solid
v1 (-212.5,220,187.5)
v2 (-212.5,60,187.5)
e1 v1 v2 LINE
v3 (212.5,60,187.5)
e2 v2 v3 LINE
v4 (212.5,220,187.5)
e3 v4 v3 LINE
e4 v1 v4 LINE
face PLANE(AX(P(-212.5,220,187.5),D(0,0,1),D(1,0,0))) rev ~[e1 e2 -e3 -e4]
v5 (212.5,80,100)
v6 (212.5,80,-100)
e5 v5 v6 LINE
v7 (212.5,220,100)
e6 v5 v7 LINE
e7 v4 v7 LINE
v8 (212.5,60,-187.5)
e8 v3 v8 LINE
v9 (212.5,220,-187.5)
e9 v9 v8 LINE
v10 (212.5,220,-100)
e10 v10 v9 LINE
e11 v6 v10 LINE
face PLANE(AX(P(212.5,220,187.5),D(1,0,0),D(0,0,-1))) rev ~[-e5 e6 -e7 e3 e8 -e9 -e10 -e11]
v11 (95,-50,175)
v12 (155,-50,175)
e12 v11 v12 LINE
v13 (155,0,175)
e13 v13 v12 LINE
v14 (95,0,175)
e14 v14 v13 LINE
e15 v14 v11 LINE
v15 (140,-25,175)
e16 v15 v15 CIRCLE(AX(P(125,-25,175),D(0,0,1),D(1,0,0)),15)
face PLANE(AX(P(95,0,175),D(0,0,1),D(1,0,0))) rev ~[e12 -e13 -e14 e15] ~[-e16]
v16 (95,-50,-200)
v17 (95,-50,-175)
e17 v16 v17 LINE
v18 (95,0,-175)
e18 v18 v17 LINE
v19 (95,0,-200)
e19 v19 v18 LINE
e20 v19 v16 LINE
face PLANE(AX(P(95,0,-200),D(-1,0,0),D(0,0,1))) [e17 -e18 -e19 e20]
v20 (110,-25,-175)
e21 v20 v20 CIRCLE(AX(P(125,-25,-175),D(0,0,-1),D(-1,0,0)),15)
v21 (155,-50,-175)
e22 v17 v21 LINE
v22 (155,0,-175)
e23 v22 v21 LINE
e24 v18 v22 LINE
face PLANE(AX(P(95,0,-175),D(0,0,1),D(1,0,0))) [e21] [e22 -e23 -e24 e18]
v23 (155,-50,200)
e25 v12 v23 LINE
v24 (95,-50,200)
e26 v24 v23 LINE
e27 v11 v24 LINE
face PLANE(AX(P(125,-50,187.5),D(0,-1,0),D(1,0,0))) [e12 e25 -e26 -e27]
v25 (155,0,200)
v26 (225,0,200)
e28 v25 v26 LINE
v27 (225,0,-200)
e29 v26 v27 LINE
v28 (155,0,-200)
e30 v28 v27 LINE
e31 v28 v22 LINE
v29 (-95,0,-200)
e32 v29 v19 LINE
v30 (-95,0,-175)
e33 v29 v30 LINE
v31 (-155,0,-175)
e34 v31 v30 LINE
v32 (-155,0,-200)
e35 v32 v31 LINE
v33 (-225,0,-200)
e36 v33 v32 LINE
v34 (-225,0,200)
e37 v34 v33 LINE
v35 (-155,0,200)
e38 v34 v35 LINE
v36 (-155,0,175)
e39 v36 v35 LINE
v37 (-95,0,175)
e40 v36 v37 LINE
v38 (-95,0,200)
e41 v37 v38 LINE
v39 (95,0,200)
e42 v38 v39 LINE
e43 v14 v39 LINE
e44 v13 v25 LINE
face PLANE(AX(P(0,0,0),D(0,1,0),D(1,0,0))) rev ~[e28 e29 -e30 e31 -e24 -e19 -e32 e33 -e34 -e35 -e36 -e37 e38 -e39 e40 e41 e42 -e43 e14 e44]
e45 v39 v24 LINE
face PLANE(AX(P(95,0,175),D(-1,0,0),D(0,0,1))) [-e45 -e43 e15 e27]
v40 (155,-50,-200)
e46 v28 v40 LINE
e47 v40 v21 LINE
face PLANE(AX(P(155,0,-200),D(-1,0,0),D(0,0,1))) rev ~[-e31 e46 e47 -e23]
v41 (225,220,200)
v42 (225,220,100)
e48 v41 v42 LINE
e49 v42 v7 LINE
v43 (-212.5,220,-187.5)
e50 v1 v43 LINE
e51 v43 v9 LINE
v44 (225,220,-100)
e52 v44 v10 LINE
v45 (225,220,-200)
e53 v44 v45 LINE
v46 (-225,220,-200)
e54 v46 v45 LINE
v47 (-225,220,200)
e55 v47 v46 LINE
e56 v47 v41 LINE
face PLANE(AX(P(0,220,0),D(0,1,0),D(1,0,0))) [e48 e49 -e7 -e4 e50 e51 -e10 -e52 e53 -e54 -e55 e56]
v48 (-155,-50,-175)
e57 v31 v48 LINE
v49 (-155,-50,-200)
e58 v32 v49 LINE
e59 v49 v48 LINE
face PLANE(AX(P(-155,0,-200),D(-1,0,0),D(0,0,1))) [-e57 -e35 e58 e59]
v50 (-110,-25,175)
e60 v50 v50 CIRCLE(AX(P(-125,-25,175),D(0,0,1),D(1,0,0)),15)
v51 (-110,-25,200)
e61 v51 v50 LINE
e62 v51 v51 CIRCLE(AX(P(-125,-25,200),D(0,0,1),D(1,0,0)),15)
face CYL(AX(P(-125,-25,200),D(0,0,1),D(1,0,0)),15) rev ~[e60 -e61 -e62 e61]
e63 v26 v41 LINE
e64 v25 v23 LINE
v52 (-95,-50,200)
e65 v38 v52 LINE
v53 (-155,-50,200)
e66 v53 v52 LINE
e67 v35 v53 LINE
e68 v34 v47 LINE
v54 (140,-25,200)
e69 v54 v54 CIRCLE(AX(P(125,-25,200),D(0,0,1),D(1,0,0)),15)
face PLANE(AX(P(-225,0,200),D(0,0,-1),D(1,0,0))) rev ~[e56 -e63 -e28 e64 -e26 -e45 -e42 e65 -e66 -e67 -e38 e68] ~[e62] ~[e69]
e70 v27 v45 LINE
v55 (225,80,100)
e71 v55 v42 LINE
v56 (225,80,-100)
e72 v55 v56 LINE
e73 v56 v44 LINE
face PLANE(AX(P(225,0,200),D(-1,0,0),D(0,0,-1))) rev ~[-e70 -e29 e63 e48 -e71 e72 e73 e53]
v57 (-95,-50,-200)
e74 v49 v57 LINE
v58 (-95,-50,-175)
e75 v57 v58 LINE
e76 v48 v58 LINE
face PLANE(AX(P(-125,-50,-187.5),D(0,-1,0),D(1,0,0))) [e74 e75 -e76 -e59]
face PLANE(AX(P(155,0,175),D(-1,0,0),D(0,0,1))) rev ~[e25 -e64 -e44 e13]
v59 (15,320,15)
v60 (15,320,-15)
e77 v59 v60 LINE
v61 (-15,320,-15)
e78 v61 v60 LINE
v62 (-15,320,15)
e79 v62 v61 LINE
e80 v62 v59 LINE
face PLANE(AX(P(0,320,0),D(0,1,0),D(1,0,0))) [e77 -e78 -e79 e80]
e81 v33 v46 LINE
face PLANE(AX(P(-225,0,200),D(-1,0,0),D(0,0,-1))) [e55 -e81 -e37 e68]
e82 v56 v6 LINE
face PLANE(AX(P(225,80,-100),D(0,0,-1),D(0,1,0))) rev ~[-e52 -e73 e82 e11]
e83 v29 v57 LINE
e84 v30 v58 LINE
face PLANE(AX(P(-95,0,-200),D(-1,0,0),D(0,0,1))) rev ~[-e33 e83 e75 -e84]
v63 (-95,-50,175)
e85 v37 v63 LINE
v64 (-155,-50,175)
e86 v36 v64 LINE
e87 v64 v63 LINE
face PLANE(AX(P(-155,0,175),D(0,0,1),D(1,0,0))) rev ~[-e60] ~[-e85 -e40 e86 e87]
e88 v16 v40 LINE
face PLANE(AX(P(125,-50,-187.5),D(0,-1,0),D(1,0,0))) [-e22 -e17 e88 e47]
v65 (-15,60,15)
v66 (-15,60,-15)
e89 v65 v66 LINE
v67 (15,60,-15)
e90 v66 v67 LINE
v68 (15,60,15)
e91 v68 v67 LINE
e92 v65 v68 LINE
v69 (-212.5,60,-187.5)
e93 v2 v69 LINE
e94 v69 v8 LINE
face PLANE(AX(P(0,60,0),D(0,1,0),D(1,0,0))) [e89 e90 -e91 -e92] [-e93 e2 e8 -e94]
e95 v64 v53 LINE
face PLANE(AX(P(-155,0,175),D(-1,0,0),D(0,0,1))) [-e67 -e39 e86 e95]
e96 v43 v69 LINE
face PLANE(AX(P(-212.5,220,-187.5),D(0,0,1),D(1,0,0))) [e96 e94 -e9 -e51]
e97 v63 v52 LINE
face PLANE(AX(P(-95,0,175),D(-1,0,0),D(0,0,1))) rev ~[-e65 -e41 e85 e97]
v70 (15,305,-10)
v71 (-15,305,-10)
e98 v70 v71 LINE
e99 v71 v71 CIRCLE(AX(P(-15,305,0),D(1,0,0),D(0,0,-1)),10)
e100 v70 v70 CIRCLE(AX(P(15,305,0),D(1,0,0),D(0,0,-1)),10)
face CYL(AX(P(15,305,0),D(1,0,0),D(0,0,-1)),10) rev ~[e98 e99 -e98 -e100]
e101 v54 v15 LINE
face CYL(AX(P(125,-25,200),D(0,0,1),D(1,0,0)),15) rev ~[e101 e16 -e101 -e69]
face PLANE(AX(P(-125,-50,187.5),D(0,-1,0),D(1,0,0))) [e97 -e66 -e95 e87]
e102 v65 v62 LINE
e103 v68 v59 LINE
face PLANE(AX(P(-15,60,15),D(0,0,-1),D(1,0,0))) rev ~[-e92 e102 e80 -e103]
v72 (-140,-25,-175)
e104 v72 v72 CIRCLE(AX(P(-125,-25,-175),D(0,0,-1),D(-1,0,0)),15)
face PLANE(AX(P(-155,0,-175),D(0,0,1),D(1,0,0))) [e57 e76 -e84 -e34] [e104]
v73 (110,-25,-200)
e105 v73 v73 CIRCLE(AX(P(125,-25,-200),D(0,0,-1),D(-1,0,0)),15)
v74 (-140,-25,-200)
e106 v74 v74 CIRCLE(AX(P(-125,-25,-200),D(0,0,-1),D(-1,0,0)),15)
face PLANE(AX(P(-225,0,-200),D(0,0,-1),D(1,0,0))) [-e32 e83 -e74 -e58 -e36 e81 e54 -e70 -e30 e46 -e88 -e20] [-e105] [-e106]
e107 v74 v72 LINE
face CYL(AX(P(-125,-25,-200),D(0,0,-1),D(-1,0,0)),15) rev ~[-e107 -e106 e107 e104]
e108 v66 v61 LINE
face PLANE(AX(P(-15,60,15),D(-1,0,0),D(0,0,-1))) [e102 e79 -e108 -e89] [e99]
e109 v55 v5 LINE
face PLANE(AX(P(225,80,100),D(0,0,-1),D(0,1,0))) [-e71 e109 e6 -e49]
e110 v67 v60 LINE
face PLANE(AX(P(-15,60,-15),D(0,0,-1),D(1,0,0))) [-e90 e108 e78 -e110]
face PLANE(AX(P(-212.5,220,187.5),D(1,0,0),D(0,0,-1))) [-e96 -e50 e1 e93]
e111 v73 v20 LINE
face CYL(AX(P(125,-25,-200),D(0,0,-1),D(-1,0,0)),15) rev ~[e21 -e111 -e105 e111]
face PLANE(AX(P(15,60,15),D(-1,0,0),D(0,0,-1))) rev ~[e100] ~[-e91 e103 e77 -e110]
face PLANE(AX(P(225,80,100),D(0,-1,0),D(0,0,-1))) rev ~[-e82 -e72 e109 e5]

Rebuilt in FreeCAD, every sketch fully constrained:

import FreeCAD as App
import Part
import Sketcher
from FreeCAD import Vector


def add_polygon(sketch, points):
    """Adds a closed chain of lines whose ends are joined by coincident constraints."""
    first, n = sketch.GeometryCount, len(points)
    for a, b in zip(points, points[1:] + points[:1]):
        sketch.addGeometry(Part.LineSegment(App.Vector(*a, 0), App.Vector(*b, 0)), False)
    for i in range(n):
        sketch.addConstraint(Sketcher.Constraint("Coincident", first + i, 2, first + (i + 1) % n, 1))

doc = App.newDocument("Part")
body = doc.addObject("PartDesign::Body", "Body")

# Sketch on XZ plane
sketch1 = body.newObject("Sketcher::SketchObject", "Sketch")
sketch1.AttachmentSupport = (doc.getObject("XZ_Plane"), [""])
sketch1.MapMode = "FlatFace"
add_polygon(sketch1, [(-225, -200), (-225, 200), (225, 200), (225, -200)])  # lines 0-3
sketch1.addConstraint([
    Sketcher.Constraint("Vertical", 0),
    Sketcher.Constraint("Horizontal", 1),
    Sketcher.Constraint("Vertical", 2),
    Sketcher.Constraint("Horizontal", 3),
    Sketcher.Constraint("Symmetric", 0, 2, 2, 2, -1, 1),
    Sketcher.Constraint("DistanceX", 1, 1, 1, 2, 450.0),
    Sketcher.Constraint("DistanceY", 0, 1, 0, 2, 400.0),
])
pad1 = body.newObject("PartDesign::Pad", "Pad")
pad1.Profile = sketch1
pad1.Length = 220
pad1.Reversed = True

# Sketch on XZ plane
sketch2 = body.newObject("Sketcher::SketchObject", "Sketch001")
sketch2.AttachmentSupport = (doc.getObject("XZ_Plane"), [""])
sketch2.MapMode = "FlatFace"
sketch2.AttachmentOffset = App.Placement(Vector(0, 0, -220), App.Rotation())
add_polygon(sketch2, [(-212, -188), (-212, 188), (212, 188), (212, -188)])  # lines 0-3
sketch2.addConstraint([
    Sketcher.Constraint("Vertical", 0),
    Sketcher.Constraint("Horizontal", 1),
    Sketcher.Constraint("Vertical", 2),
    Sketcher.Constraint("Horizontal", 3),
    Sketcher.Constraint("Symmetric", 0, 2, 2, 2, -1, 1),
    Sketcher.Constraint("DistanceX", 1, 1, 1, 2, 425.0),
    Sketcher.Constraint("DistanceY", 0, 1, 0, 2, 375.0),
])
pocket1 = body.newObject("PartDesign::Pocket", "Pocket")
pocket1.Profile = sketch2
pocket1.Length = 160
pocket1.Reversed = True

# Sketch on YZ plane
sketch3 = body.newObject("Sketcher::SketchObject", "Sketch002")
sketch3.AttachmentSupport = (doc.getObject("YZ_Plane"), [""])
sketch3.MapMode = "FlatFace"
sketch3.AttachmentOffset = App.Placement(Vector(0, 0, 225), App.Rotation())
add_polygon(sketch3, [(220, 100), (80, 100), (80, -100), (220, -100)])  # lines 0-3
sketch3.addConstraint([
    Sketcher.Constraint("Horizontal", 0),
    Sketcher.Constraint("Vertical", 1),
    Sketcher.Constraint("Horizontal", 2),
    Sketcher.Constraint("Vertical", 3),
    Sketcher.Constraint("DistanceX", 0, 2, 0, 1, 140.0),
    Sketcher.Constraint("DistanceY", 1, 2, 1, 1, 200.0),
    Sketcher.Constraint("DistanceX", -1, 1, 0, 2, 80.0),
    Sketcher.Constraint("DistanceY", -1, 1, 0, 2, 100.0),
])
pocket2 = body.newObject("PartDesign::Pocket", "Pocket001")
pocket2.Profile = sketch3
pocket2.Length = 12.5

# Sketch on XZ plane
sketch4 = body.newObject("Sketcher::SketchObject", "Sketch003")
sketch4.AttachmentSupport = (doc.getObject("XZ_Plane"), [""])
sketch4.MapMode = "FlatFace"
sketch4.AttachmentOffset = App.Placement(Vector(0, 0, -60), App.Rotation())
add_polygon(sketch4, [(-15, -15), (-15, 15), (15, 15), (15, -15)])  # lines 0-3
sketch4.addConstraint([
    Sketcher.Constraint("Vertical", 0),
    Sketcher.Constraint("Horizontal", 1),
    Sketcher.Constraint("Vertical", 2),
    Sketcher.Constraint("Horizontal", 3),
    Sketcher.Constraint("Symmetric", 0, 2, 2, 2, -1, 1),
    Sketcher.Constraint("Equal", 3, 0),
    Sketcher.Constraint("DistanceX", 1, 1, 1, 2, 30.0),
])
pad2 = body.newObject("PartDesign::Pad", "Pad001")
pad2.Profile = sketch4
pad2.Length = 260
pad2.Reversed = True

# Sketch on YZ plane
sketch5 = body.newObject("Sketcher::SketchObject", "Sketch004")
sketch5.AttachmentSupport = (doc.getObject("YZ_Plane"), [""])
sketch5.MapMode = "FlatFace"
sketch5.AttachmentOffset = App.Placement(Vector(0, 0, 15), App.Rotation())
sketch5.addGeometry(Part.Circle(Vector(305, 0, 0), Vector(0, 0, 1), 10), False)
sketch5.addConstraint([
    Sketcher.Constraint("PointOnObject", 0, 3, -1),
    Sketcher.Constraint("Diameter", 0, 20.0),
    Sketcher.Constraint("DistanceX", -1, 1, 0, 3, 305.0),
])
pocket3 = body.newObject("PartDesign::Pocket", "Pocket002")
pocket3.Profile = sketch5
pocket3.Length = 30

# Sketch on XZ plane
sketch6 = body.newObject("Sketcher::SketchObject", "Sketch005")
sketch6.AttachmentSupport = (doc.getObject("XZ_Plane"), [""])
sketch6.MapMode = "FlatFace"
add_polygon(sketch6, [(95, 200), (95, 175), (155, 175), (155, 200)])  # lines 0-3
add_polygon(sketch6, [(-155, 200), (-155, 175), (-95, 175), (-95, 200)])  # lines 4-7
add_polygon(sketch6, [(-155, -175), (-155, -200), (-95, -200), (-95, -175)])  # lines 8-11
add_polygon(sketch6, [(95, -175), (95, -200), (155, -200), (155, -175)])  # lines 12-15
sketch6.addConstraint([
    Sketcher.Constraint("Vertical", 0),
    Sketcher.Constraint("Horizontal", 1),
    Sketcher.Constraint("Vertical", 2),
    Sketcher.Constraint("Horizontal", 3),
    Sketcher.Constraint("Vertical", 4),
    Sketcher.Constraint("Horizontal", 5),
    Sketcher.Constraint("Vertical", 6),
    Sketcher.Constraint("Horizontal", 7),
    Sketcher.Constraint("Vertical", 8),
    Sketcher.Constraint("Horizontal", 9),
    Sketcher.Constraint("Vertical", 10),
    Sketcher.Constraint("Horizontal", 11),
    Sketcher.Constraint("Vertical", 12),
    Sketcher.Constraint("Horizontal", 13),
    Sketcher.Constraint("Vertical", 14),
    Sketcher.Constraint("Horizontal", 15),
    Sketcher.Constraint("Symmetric", 2, 2, 8, 2, -1, 1),
    Sketcher.Constraint("Symmetric", 0, 2, 10, 2, -1, 1),
    Sketcher.Constraint("Symmetric", 6, 2, 12, 2, -1, 1),
    Sketcher.Constraint("Symmetric", 4, 2, 14, 2, -1, 1),
    Sketcher.Constraint("Symmetric", 1, 2, 4, 2, -2),
    Sketcher.Constraint("Symmetric", 3, 2, 6, 2, -2),
    Sketcher.Constraint("DistanceX", 1, 1, 1, 2, 60.0),
    Sketcher.Constraint("DistanceY", 0, 2, 0, 1, 25.0),
    Sketcher.Constraint("DistanceX", -1, 1, 0, 2, 95.0),
    Sketcher.Constraint("DistanceY", -1, 1, 0, 2, 175.0),
])
pad3 = body.newObject("PartDesign::Pad", "Pad002")
pad3.Profile = sketch6
pad3.Length = 50

# Sketch on XY plane
sketch7 = body.newObject("Sketcher::SketchObject", "Sketch006")
sketch7.AttachmentSupport = (doc.getObject("XY_Plane"), [""])
sketch7.MapMode = "FlatFace"
sketch7.AttachmentOffset = App.Placement(Vector(0, 0, -200), App.Rotation())
sketch7.addGeometry([
    Part.Circle(Vector(-125, -25, 0), Vector(0, 0, 1), 15),
    Part.Circle(Vector(125, -25, 0), Vector(0, 0, 1), 15),
], False)
sketch7.addConstraint([
    Sketcher.Constraint("Equal", 0, 1),
    Sketcher.Constraint("Symmetric", 0, 3, 1, 3, -2),
    Sketcher.Constraint("Diameter", 0, 30.0),
    Sketcher.Constraint("DistanceX", 0, 3, -1, 1, 125.0),
    Sketcher.Constraint("DistanceY", 0, 3, -1, 1, 25.0),
])
pocket4 = body.newObject("PartDesign::Pocket", "Pocket003")
pocket4.Profile = sketch7
pocket4.Length = 25
pocket4.Reversed = True

# Sketch on XY plane
sketch8 = body.newObject("Sketcher::SketchObject", "Sketch007")
sketch8.AttachmentSupport = (doc.getObject("XY_Plane"), [""])
sketch8.MapMode = "FlatFace"
sketch8.AttachmentOffset = App.Placement(Vector(0, 0, 200), App.Rotation())
sketch8.addGeometry([
    Part.Circle(Vector(-125, -25, 0), Vector(0, 0, 1), 15),
    Part.Circle(Vector(125, -25, 0), Vector(0, 0, 1), 15),
], False)
sketch8.addConstraint([
    Sketcher.Constraint("Equal", 0, 1),
    Sketcher.Constraint("Symmetric", 0, 3, 1, 3, -2),
    Sketcher.Constraint("Diameter", 0, 30.0),
    Sketcher.Constraint("DistanceX", 0, 3, -1, 1, 125.0),
    Sketcher.Constraint("DistanceY", 0, 3, -1, 1, 25.0),
])
pocket5 = body.newObject("PartDesign::Pocket", "Pocket004")
pocket5.Profile = sketch8
pocket5.Length = 25

doc.recompute()
